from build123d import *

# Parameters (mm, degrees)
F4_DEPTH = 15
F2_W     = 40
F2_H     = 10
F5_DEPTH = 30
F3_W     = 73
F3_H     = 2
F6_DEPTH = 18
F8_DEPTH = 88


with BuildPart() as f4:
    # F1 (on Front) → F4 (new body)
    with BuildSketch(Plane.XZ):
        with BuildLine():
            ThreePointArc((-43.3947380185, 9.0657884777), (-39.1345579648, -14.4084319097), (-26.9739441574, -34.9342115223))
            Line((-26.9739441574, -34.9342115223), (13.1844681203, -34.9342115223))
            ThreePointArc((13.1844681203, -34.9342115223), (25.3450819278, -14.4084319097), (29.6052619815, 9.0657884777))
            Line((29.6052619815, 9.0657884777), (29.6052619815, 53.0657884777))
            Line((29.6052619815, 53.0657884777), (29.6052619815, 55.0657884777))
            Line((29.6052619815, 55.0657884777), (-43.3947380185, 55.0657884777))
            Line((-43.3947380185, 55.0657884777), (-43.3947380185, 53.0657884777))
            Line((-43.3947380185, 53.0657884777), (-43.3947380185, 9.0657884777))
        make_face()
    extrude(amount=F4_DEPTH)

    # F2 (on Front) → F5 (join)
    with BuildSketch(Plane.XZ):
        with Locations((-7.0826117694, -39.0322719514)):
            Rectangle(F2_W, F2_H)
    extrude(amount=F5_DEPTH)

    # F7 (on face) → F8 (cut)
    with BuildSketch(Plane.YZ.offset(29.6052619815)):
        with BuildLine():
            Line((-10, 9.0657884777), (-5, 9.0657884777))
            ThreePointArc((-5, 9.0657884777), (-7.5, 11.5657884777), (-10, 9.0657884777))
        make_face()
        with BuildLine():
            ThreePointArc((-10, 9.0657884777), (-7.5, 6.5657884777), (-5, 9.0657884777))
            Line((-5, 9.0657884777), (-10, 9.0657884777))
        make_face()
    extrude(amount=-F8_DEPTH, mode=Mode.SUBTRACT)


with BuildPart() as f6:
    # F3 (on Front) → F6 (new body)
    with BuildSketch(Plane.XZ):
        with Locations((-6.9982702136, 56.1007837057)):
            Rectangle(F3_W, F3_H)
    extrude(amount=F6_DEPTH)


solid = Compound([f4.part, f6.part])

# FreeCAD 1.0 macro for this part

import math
import FreeCAD as App
import Part
import Sketcher


def add_polygon(sketch, points):
    """Adds a closed chain of lines whose ends are joined by coincident constraints."""
    first, n = sketch.GeometryCount, len(points)
    for a, b in zip(points, points[1:] + points[:1]):
        sketch.addGeometry(Part.LineSegment(App.Vector(*a, 0), App.Vector(*b, 0)), False)
    for i in range(n):
        sketch.addConstraint(Sketcher.Constraint("Coincident", first + i, 2, first + (i + 1) % n, 1))

doc = App.newDocument("Part")
body = doc.addObject("PartDesign::Body", "Body")

sketch1 = body.newObject("Sketcher::SketchObject", "Sketch")
sketch1.AttachmentSupport = (doc.getObject("XZ_Plane"), [""])
sketch1.MapMode = "FlatFace"
sketch1.addGeometry(Part.ArcOfCircle(Part.Circle(App.Vector(24.10301, 9.191819, 0), App.Vector(0, 0, 1), 67.497865), math.radians(-179.893018), math.radians(-139.175847)), False)
sketch1.addGeometry(Part.LineSegment(App.Vector(-26.973944, -34.934212, 0), App.Vector(13.184468, -34.934212, 0)), False)
sketch1.addGeometry(Part.ArcOfCircle(Part.Circle(App.Vector(-37.892486, 9.191819, 0), App.Vector(0, 0, 1), 67.497865), math.radians(-40.824153), math.radians(-0.106982)), False)
sketch1.addGeometry(Part.LineSegment(App.Vector(29.605262, 9.065788, 0), App.Vector(29.605262, 55.065788, 0)), False)
sketch1.addGeometry(Part.LineSegment(App.Vector(29.605262, 55.065788, 0), App.Vector(-43.394738, 55.065788, 0)), False)
sketch1.addGeometry(Part.LineSegment(App.Vector(-43.394738, 55.065788, 0), App.Vector(-43.394738, 9.065788, 0)), False)
sketch1.addConstraint(Sketcher.Constraint("Coincident", 0, 2, 1, 1))
sketch1.addConstraint(Sketcher.Constraint("Coincident", 1, 2, 2, 1))
sketch1.addConstraint(Sketcher.Constraint("Coincident", 2, 2, 3, 1))
sketch1.addConstraint(Sketcher.Constraint("Coincident", 3, 2, 4, 1))
sketch1.addConstraint(Sketcher.Constraint("Coincident", 4, 2, 5, 1))
sketch1.addConstraint(Sketcher.Constraint("Coincident", 5, 2, 0, 1))
sketch1.addConstraint(Sketcher.Constraint("Horizontal", 1))
sketch1.addConstraint(Sketcher.Constraint("Vertical", 3))
sketch1.addConstraint(Sketcher.Constraint("Horizontal", 4))
sketch1.addConstraint(Sketcher.Constraint("Vertical", 5))
sketch1.addConstraint(Sketcher.Constraint("Equal", 0, 2))
sketch1.addConstraint(Sketcher.Constraint("Horizontal", 0, 3, 2, 3))
sketch1.addConstraint(Sketcher.Constraint("Horizontal", 2, 2, 5, 2))
sketch1.addConstraint(Sketcher.Constraint("DistanceX", 4, 2, 4, 1, 73.0))
sketch1.addConstraint(Sketcher.Constraint("DistanceY", 3, 1, 3, 2, 46.0))
sketch1.addConstraint(Sketcher.Constraint("DistanceY", 1, 2, 2, 2, 44.0))
sketch1.addConstraint(Sketcher.Constraint("Radius", 0, 67.497865))
sketch1.addConstraint(Sketcher.Constraint("DistanceX", 1, 1, 1, 2, 40.158412))
sketch1.addConstraint(Sketcher.Constraint("DistanceX", -1, 1, 0, 3, 24.10301))
sketch1.addConstraint(Sketcher.Constraint("DistanceY", -1, 1, 0, 3, 9.191819))
pad1 = body.newObject("PartDesign::Pad", "Pad")
pad1.Profile = sketch1
pad1.Length = 15

sketch2 = body.newObject("Sketcher::SketchObject", "Sketch001")
sketch2.AttachmentSupport = (doc.getObject("XZ_Plane"), [""])
sketch2.MapMode = "FlatFace"
add_polygon(sketch2, [(-27.082612, -34.032272), (-27.082612, -44.032272), (12.917388, -44.032272), (12.917388, -34.032272)])
sketch2.addConstraint(Sketcher.Constraint("Vertical", 0))
sketch2.addConstraint(Sketcher.Constraint("Horizontal", 1))
sketch2.addConstraint(Sketcher.Constraint("Vertical", 2))
sketch2.addConstraint(Sketcher.Constraint("Horizontal", 3))
sketch2.addConstraint(Sketcher.Constraint("DistanceX", 1, 1, 1, 2, 40.0))
sketch2.addConstraint(Sketcher.Constraint("DistanceY", 0, 2, 0, 1, 10.0))
sketch2.addConstraint(Sketcher.Constraint("DistanceX", 0, 2, -1, 1, 27.082612))
sketch2.addConstraint(Sketcher.Constraint("DistanceY", 0, 2, -1, 1, 44.032272))
pad2 = body.newObject("PartDesign::Pad", "Pad001")
pad2.Profile = sketch2
pad2.Length = 30

sketch3 = body.newObject("Sketcher::SketchObject", "Sketch002")
sketch3.AttachmentSupport = (doc.getObject("YZ_Plane"), [""])
sketch3.MapMode = "FlatFace"
sketch3.AttachmentOffset = App.Placement(App.Vector(0, 0, 29.605262), App.Rotation())
sketch3.addGeometry(Part.Circle(App.Vector(-7.5, 9.065788, 0), App.Vector(0, 0, 1), 2.5), False)
sketch3.addConstraint(Sketcher.Constraint("Diameter", 0, 5.0))
sketch3.addConstraint(Sketcher.Constraint("DistanceX", 0, 3, -1, 1, 7.5))
sketch3.addConstraint(Sketcher.Constraint("DistanceY", -1, 1, 0, 3, 9.065788))
pocket1 = body.newObject("PartDesign::Pocket", "Pocket")
pocket1.Profile = sketch3
pocket1.Length = 88
body2 = doc.addObject("PartDesign::Body", "Body001")

sketch4 = body2.newObject("Sketcher::SketchObject", "Sketch003")
sketch4.AttachmentSupport = (doc.getObject("XZ_Plane001"), [""])
sketch4.MapMode = "FlatFace"
add_polygon(sketch4, [(-43.49827, 57.100784), (-43.49827, 55.100784), (29.50173, 55.100784), (29.50173, 57.100784)])
sketch4.addConstraint(Sketcher.Constraint("Vertical", 0))
sketch4.addConstraint(Sketcher.Constraint("Horizontal", 1))
sketch4.addConstraint(Sketcher.Constraint("Vertical", 2))
sketch4.addConstraint(Sketcher.Constraint("Horizontal", 3))
sketch4.addConstraint(Sketcher.Constraint("DistanceX", 1, 1, 1, 2, 73.0))
sketch4.addConstraint(Sketcher.Constraint("DistanceY", 0, 2, 0, 1, 2.0))
sketch4.addConstraint(Sketcher.Constraint("DistanceX", 0, 2, -1, 1, 43.49827))
sketch4.addConstraint(Sketcher.Constraint("DistanceY", -1, 1, 0, 2, 55.100784))
pad3 = body2.newObject("PartDesign::Pad", "Pad002")
pad3.Profile = sketch4
pad3.Length = 18

doc.recompute()
